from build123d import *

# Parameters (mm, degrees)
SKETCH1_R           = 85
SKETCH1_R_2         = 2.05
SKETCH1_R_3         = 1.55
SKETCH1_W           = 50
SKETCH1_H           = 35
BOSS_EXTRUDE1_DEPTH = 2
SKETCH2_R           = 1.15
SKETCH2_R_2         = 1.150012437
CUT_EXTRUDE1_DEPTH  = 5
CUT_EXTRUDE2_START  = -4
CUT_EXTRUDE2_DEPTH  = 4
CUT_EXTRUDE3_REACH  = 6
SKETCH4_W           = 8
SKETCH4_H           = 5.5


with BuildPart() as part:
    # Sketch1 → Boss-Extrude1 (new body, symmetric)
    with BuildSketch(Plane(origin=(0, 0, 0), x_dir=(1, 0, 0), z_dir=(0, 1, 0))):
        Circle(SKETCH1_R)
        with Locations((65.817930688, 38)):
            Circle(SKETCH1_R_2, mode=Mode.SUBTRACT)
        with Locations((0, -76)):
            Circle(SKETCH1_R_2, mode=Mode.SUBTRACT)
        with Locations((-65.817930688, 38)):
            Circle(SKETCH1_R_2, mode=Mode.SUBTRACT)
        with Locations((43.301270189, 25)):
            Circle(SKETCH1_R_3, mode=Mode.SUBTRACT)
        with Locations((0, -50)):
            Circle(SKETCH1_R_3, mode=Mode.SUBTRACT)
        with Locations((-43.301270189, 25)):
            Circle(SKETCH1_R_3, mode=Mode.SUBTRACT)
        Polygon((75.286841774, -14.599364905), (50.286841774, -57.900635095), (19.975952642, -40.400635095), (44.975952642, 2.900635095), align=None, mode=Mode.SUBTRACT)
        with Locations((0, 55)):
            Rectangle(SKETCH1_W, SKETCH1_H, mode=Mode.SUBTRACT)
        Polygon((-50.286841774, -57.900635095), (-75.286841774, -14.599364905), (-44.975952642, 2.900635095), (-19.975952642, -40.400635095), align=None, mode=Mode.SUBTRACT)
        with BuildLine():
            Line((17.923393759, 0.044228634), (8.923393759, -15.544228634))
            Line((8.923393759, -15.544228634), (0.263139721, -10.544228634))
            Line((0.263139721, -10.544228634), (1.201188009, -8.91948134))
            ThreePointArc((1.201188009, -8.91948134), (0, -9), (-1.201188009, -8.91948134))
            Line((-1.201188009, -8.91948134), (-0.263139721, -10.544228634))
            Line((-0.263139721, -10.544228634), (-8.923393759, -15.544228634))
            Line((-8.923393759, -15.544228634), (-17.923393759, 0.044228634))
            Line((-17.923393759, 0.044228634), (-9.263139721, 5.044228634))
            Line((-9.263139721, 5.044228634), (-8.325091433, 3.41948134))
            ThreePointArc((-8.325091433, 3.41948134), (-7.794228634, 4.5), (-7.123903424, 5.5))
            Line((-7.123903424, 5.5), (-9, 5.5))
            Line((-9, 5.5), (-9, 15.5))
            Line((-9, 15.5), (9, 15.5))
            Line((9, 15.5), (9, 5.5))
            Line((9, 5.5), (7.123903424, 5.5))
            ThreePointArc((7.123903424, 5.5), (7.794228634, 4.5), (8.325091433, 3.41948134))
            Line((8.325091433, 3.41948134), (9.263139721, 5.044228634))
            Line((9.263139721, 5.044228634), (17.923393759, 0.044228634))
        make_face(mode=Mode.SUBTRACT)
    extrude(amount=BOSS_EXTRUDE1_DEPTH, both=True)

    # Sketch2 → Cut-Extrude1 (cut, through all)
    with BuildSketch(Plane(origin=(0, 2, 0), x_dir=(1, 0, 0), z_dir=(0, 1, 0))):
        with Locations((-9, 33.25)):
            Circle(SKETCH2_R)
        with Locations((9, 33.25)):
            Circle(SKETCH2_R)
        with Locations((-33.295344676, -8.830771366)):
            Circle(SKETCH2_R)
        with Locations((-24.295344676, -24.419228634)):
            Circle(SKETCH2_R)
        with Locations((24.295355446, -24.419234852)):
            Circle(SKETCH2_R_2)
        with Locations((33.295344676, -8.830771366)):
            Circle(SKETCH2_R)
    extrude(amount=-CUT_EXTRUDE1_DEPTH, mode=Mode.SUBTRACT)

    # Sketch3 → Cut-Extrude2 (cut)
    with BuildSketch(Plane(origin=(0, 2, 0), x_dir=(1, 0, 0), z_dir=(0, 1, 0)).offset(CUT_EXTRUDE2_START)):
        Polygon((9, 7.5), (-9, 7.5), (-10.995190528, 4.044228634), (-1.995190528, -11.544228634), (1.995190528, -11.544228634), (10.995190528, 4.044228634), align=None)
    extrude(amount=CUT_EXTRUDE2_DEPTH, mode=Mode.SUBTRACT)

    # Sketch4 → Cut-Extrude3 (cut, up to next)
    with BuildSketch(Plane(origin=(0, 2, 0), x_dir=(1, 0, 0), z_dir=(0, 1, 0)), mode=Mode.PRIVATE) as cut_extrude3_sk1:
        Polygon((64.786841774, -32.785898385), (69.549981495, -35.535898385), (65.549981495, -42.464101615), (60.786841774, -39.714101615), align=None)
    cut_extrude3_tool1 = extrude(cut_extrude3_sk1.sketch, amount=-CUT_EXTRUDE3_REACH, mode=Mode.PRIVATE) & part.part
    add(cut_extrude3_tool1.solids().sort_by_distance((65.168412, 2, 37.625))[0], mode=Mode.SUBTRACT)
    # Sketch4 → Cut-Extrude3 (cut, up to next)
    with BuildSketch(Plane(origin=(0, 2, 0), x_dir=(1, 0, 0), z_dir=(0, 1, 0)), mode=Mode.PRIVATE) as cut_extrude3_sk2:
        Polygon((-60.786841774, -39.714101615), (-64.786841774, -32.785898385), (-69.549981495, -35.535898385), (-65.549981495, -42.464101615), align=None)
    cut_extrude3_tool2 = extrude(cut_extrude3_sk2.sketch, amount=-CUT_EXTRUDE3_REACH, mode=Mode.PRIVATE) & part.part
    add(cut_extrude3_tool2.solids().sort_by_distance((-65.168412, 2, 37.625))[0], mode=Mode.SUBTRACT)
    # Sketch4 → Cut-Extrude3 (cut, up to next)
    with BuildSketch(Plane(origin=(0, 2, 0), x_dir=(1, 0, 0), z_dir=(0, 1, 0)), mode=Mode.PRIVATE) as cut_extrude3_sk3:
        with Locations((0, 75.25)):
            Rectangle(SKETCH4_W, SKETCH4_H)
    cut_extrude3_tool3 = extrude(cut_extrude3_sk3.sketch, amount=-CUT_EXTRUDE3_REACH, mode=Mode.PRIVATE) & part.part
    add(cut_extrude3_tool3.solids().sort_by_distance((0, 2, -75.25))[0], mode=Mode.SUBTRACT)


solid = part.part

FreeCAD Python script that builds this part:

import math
import FreeCAD as App
import Part
import Sketcher

V = App.Vector
Q = App.Units.Quantity

doc = App.newDocument("Part")
body = doc.addObject("PartDesign::Body", "Body")

# Sketch on XZ plane
sketch1 = doc.addObject("Sketcher::SketchObject", "Sketch")
body.addObject(sketch1)
sketch1.AttachmentSupport = (doc.XZ_Plane, [""])
sketch1.MapMode = "FlatFace"
sketch1.addGeometry(Part.Circle(V(0, 0, 0), V(0, 0, 1), 85), False)
sketch1.addGeometry(Part.Circle(V(0, 76, 0), V(0, 0, 1), 2), False)
sketch1.addGeometry(Part.Circle(V(0, 50, 0), V(0, 0, 1), 1.6), False)
sketch1.addGeometry(Part.LineSegment(V(-20, 40.4, 0), V(-50.3, 57.9, 0)), False)
sketch1.addGeometry(Part.LineSegment(V(-50.3, 57.9, 0), V(-75.3, 14.6, 0)), False)
sketch1.addGeometry(Part.LineSegment(V(-75.3, 14.6, 0), V(-45, -2.9, 0)), False)
sketch1.addGeometry(Part.LineSegment(V(-45, -2.9, 0), V(-20, 40.4, 0)), False)
sketch1.addGeometry(Part.LineSegment(V(45, -2.9, 0), V(75.3, 14.6, 0)), False)
sketch1.addGeometry(Part.LineSegment(V(75.3, 14.6, 0), V(50.3, 57.9, 0)), False)
sketch1.addGeometry(Part.LineSegment(V(50.3, 57.9, 0), V(20, 40.4, 0)), False)
sketch1.addGeometry(Part.LineSegment(V(20, 40.4, 0), V(45, -2.9, 0)), False)
sketch1.addGeometry(Part.Circle(V(-43.3, -25, 0), V(0, 0, 1), 1.6), False)
sketch1.addGeometry(Part.LineSegment(V(9.3, -5, 0), V(17.9, 0, 0)), False)
sketch1.addGeometry(Part.LineSegment(V(17.9, 0, 0), V(8.9, 15.5, 0)), False)
sketch1.addGeometry(Part.LineSegment(V(8.9, 15.5, 0), V(0.3, 10.5, 0)), False)
sketch1.addGeometry(Part.LineSegment(V(0.3, 10.5, 0), V(1.2, 8.9, 0)), False)
sketch1.addGeometry(Part.ArcOfCircle(Part.Circle(V(0, 0, 0), V(0, 0, 1), 9), math.radians(82.33), math.radians(97.67)), False)
sketch1.addGeometry(Part.LineSegment(V(-1.2, 8.9, 0), V(-0.3, 10.5, 0)), False)
sketch1.addGeometry(Part.LineSegment(V(-0.3, 10.5, 0), V(-8.9, 15.5, 0)), False)
sketch1.addGeometry(Part.LineSegment(V(-8.9, 15.5, 0), V(-17.9, 0, 0)), False)
sketch1.addGeometry(Part.LineSegment(V(-17.9, 0, 0), V(-9.3, -5, 0)), False)
sketch1.addGeometry(Part.LineSegment(V(-9.3, -5, 0), V(-8.3, -3.4, 0)), False)
sketch1.addGeometry(Part.ArcOfCircle(Part.Circle(V(0, 0, 0), V(0, 0, 1), 9), math.radians(-157.67), math.radians(-142.33)), False)
sketch1.addGeometry(Part.LineSegment(V(-7.1, -5.5, 0), V(-9, -5.5, 0)), False)
sketch1.addGeometry(Part.LineSegment(V(-9, -5.5, 0), V(-9, -15.5, 0)), False)
sketch1.addGeometry(Part.LineSegment(V(-9, -15.5, 0), V(9, -15.5, 0)), False)
sketch1.addGeometry(Part.LineSegment(V(9, -15.5, 0), V(9, -5.5, 0)), False)
sketch1.addGeometry(Part.LineSegment(V(9, -5.5, 0), V(7.1, -5.5, 0)), False)
sketch1.addGeometry(Part.ArcOfCircle(Part.Circle(V(0, 0, 0), V(0, 0, 1), 9), math.radians(-37.67), math.radians(-22.33)), False)
sketch1.addGeometry(Part.LineSegment(V(8.3, -3.4, 0), V(9.3, -5, 0)), False)
sketch1.addGeometry(Part.Circle(V(-65.8, -38, 0), V(0, 0, 1), 2), False)
sketch1.addGeometry(Part.LineSegment(V(25, -37.5, 0), V(-25, -37.5, 0)), False)
sketch1.addGeometry(Part.LineSegment(V(-25, -37.5, 0), V(-25, -72.5, 0)), False)
sketch1.addGeometry(Part.LineSegment(V(-25, -72.5, 0), V(25, -72.5, 0)), False)
sketch1.addGeometry(Part.LineSegment(V(25, -72.5, 0), V(25, -37.5, 0)), False)
sketch1.addGeometry(Part.Circle(V(43.3, -25, 0), V(0, 0, 1), 1.6), False)
sketch1.addGeometry(Part.Circle(V(65.8, -38, 0), V(0, 0, 1), 2), False)
sketch1.addConstraint(Sketcher.Constraint("Coincident", 3, 2, 4, 1))
sketch1.addConstraint(Sketcher.Constraint("Coincident", 4, 2, 5, 1))
sketch1.addConstraint(Sketcher.Constraint("Coincident", 5, 2, 6, 1))
sketch1.addConstraint(Sketcher.Constraint("Coincident", 6, 2, 3, 1))
sketch1.addConstraint(Sketcher.Constraint("Coincident", 7, 2, 8, 1))
sketch1.addConstraint(Sketcher.Constraint("Coincident", 8, 2, 9, 1))
sketch1.addConstraint(Sketcher.Constraint("Coincident", 9, 2, 10, 1))
sketch1.addConstraint(Sketcher.Constraint("Coincident", 10, 2, 7, 1))
sketch1.addConstraint(Sketcher.Constraint("Coincident", 12, 2, 13, 1))
sketch1.addConstraint(Sketcher.Constraint("Coincident", 13, 2, 14, 1))
sketch1.addConstraint(Sketcher.Constraint("Coincident", 14, 2, 15, 1))
sketch1.addConstraint(Sketcher.Constraint("Coincident", 15, 2, 16, 1))
sketch1.addConstraint(Sketcher.Constraint("Coincident", 16, 2, 17, 1))
sketch1.addConstraint(Sketcher.Constraint("Coincident", 17, 2, 18, 1))
sketch1.addConstraint(Sketcher.Constraint("Coincident", 18, 2, 19, 1))
sketch1.addConstraint(Sketcher.Constraint("Coincident", 19, 2, 20, 1))
sketch1.addConstraint(Sketcher.Constraint("Coincident", 20, 2, 21, 1))
sketch1.addConstraint(Sketcher.Constraint("Coincident", 21, 2, 22, 1))
sketch1.addConstraint(Sketcher.Constraint("Coincident", 22, 2, 23, 1))
sketch1.addConstraint(Sketcher.Constraint("Coincident", 23, 2, 24, 1))
sketch1.addConstraint(Sketcher.Constraint("Coincident", 24, 2, 25, 1))
sketch1.addConstraint(Sketcher.Constraint("Coincident", 25, 2, 26, 1))
sketch1.addConstraint(Sketcher.Constraint("Coincident", 26, 2, 27, 1))
sketch1.addConstraint(Sketcher.Constraint("Coincident", 27, 2, 28, 1))
sketch1.addConstraint(Sketcher.Constraint("Coincident", 28, 2, 29, 1))
sketch1.addConstraint(Sketcher.Constraint("Coincident", 29, 2, 12, 1))
sketch1.addConstraint(Sketcher.Constraint("Coincident", 31, 2, 32, 1))
sketch1.addConstraint(Sketcher.Constraint("Coincident", 32, 2, 33, 1))
sketch1.addConstraint(Sketcher.Constraint("Coincident", 33, 2, 34, 1))
sketch1.addConstraint(Sketcher.Constraint("Coincident", 34, 2, 31, 1))
sketch1.addConstraint(Sketcher.Constraint("Horizontal", 23))
sketch1.addConstraint(Sketcher.Constraint("Vertical", 24))
sketch1.addConstraint(Sketcher.Constraint("Horizontal", 25))
sketch1.addConstraint(Sketcher.Constraint("Vertical", 26))
sketch1.addConstraint(Sketcher.Constraint("Horizontal", 27))
sketch1.addConstraint(Sketcher.Constraint("Horizontal", 31))
sketch1.addConstraint(Sketcher.Constraint("Vertical", 32))
sketch1.addConstraint(Sketcher.Constraint("Horizontal", 33))
sketch1.addConstraint(Sketcher.Constraint("Vertical", 34))
sketch1.addConstraint(Sketcher.Constraint("Coincident", 0, 3, -1, 1))
sketch1.addConstraint(Sketcher.Constraint("Coincident", 16, 3, -1, 1))
sketch1.addConstraint(Sketcher.Constraint("Coincident", 22, 3, -1, 1))
sketch1.addConstraint(Sketcher.Constraint("Coincident", 28, 3, -1, 1))
sketch1.addConstraint(Sketcher.Constraint("Equal", 2, 11))
sketch1.addConstraint(Sketcher.Constraint("Equal", 16, 22))
sketch1.addConstraint(Sketcher.Constraint("Equal", 22, 28))
sketch1.addConstraint(Sketcher.Constraint("Equal", 1, 30))
sketch1.addConstraint(Sketcher.Constraint("Equal", 11, 35))
sketch1.addConstraint(Sketcher.Constraint("Equal", 30, 36))
sketch1.addConstraint(Sketcher.Constraint("Symmetric", 11, 3, 35, 3, -2))
sketch1.addConstraint(Sketcher.Constraint("Symmetric", 30, 3, 36, 3, -2))
sketch1.addConstraint(Sketcher.Constraint("Symmetric", 4, 2, 7, 2, -2))
sketch1.addConstraint(Sketcher.Constraint("Symmetric", 3, 2, 8, 2, -2))
sketch1.addConstraint(Sketcher.Constraint("Symmetric", 6, 2, 9, 2, -2))
sketch1.addConstraint(Sketcher.Constraint("Symmetric", 5, 2, 10, 2, -2))
sketch1.addConstraint(Sketcher.Constraint("Symmetric", 14, 2, 17, 2, -2))
sketch1.addConstraint(Sketcher.Constraint("Symmetric", 13, 2, 18, 2, -2))
sketch1.addConstraint(Sketcher.Constraint("Symmetric", 12, 2, 19, 2, -2))
sketch1.addConstraint(Sketcher.Constraint("Symmetric", 23, 2, 26, 2, -2))
sketch1.addConstraint(Sketcher.Constraint("Symmetric", 20, 2, 29, 2, -2))
sketch1.addConstraint(Sketcher.Constraint("PointOnObject", 1, 3, -2))
sketch1.addConstraint(Sketcher.Constraint("PointOnObject", 2, 3, -2))
sketch1.addConstraint(Sketcher.Constraint("Perpendicular", 3, 4))
sketch1.addConstraint(Sketcher.Constraint("Perpendicular", 4, 5))
sketch1.addConstraint(Sketcher.Constraint("Perpendicular", 5, 6))
sketch1.addConstraint(Sketcher.Constraint("Perpendicular", 10, 12))
sketch1.addConstraint(Sketcher.Constraint("Perpendicular", 12, 13))
sketch1.addConstraint(Sketcher.Constraint("Perpendicular", 13, 14))
sketch1.addConstraint(Sketcher.Constraint("Perpendicular", 14, 15))
sketch1.addConstraint(Sketcher.Constraint("Parallel", 6, 17))
sketch1.addConstraint(Sketcher.Constraint("Perpendicular", 20, 21))
sketch1.addConstraint(Sketcher.Constraint("Parallel", 15, 29))
sketch1.addConstraint(Sketcher.Constraint("Equal", 12, 14))
sketch1.addConstraint(Sketcher.Constraint("Equal", 17, 21))
sketch1.addConstraint(Sketcher.Constraint("Diameter", 0, Q("170 mm")))
sketch1.addConstraint(Sketcher.Constraint("Radius", 16, Q("9 mm")))
sketch1.addConstraint(Sketcher.Constraint("Diameter", 1, Q("4.1 mm")))
sketch1.addConstraint(Sketcher.Constraint("Diameter", 2, Q("3.1 mm")))
sketch1.addConstraint(Sketcher.Constraint("DistanceX", 25, 1, 25, 2, Q("18 mm")))
sketch1.addConstraint(Sketcher.Constraint("DistanceX", 31, 2, 31, 1, Q("50 mm")))
sketch1.addConstraint(Sketcher.Constraint("DistanceY", 24, 2, 24, 1, Q("10 mm")))
sketch1.addConstraint(Sketcher.Constraint("DistanceY", 32, 2, 32, 1, Q("35 mm")))
sketch1.addConstraint(Sketcher.Constraint("Angle", 3, Q("150 deg")))
sketch1.addConstraint(Sketcher.Constraint("Distance", 3, Q("35 mm")))
sketch1.addConstraint(Sketcher.Constraint("Distance", 4, Q("50 mm")))
sketch1.addConstraint(Sketcher.Constraint("Distance", 12, Q("10 mm")))
sketch1.addConstraint(Sketcher.Constraint("Distance", 13, Q("18 mm")))
sketch1.addConstraint(Sketcher.Constraint("DistanceY", -1, 1, 1, 3, Q("76 mm")))
sketch1.addConstraint(Sketcher.Constraint("DistanceY", -1, 1, 2, 3, Q("50 mm")))
sketch1.addConstraint(Sketcher.Constraint("DistanceY", 11, 3, -1, 1, Q("25 mm")))
sketch1.addConstraint(Sketcher.Constraint("DistanceY", 30, 3, -1, 1, Q("38 mm")))
sketch1.addConstraint(Sketcher.Constraint("DistanceX", 31, 2, -1, 1, Q("25 mm")))
sketch1.addConstraint(Sketcher.Constraint("DistanceY", 31, 2, 24, 2, Q("22 mm")))
sketch1.addConstraint(Sketcher.Constraint("DistanceY", 22, 2, -1, 1, Q("5.5 mm")))
sketch1.addConstraint(Sketcher.Constraint("DistanceX", 11, 3, -1, 1, Q("43.30127 mm")))
sketch1.addConstraint(Sketcher.Constraint("DistanceX", 30, 3, -1, 1, Q("65.817931 mm")))
sketch1.addConstraint(Sketcher.Constraint("DistanceX", 3, 2, -1, 1, Q("50.286842 mm")))
sketch1.addConstraint(Sketcher.Constraint("DistanceY", 12, 2, -1, 1, Q("0.044229 mm")))
sketch1.addConstraint(Sketcher.Constraint("DistanceY", -1, 1, 3, 2, Q("57.900635 mm")))
pad1 = doc.addObject("PartDesign::Pad", "Pad")
body.addObject(pad1)
pad1.Profile = sketch1
pad1.Length = 4
pad1.Midplane = True

# Sketch on XZ plane
sketch2 = doc.addObject("Sketcher::SketchObject", "Sketch001")
body.addObject(sketch2)
sketch2.AttachmentSupport = (doc.XZ_Plane, [""])
sketch2.MapMode = "FlatFace"
sketch2.AttachmentOffset = App.Placement(V(0, 0, -2), App.Rotation())
sketch2.addGeometry(Part.Circle(V(-9, -33.2, 0), V(0, 0, 1), 1.1), False)
sketch2.addGeometry(Part.Circle(V(9, -33.2, 0), V(0, 0, 1), 1.1), False)
sketch2.addGeometry(Part.Circle(V(-33.3, 8.8, 0), V(0, 0, 1), 1.1), False)
sketch2.addGeometry(Part.Circle(V(-24.3, 24.4, 0), V(0, 0, 1), 1.1), False)
sketch2.addGeometry(Part.Circle(V(24.3, 24.4, 0), V(0, 0, 1), 1.2), False)
sketch2.addGeometry(Part.Circle(V(33.3, 8.8, 0), V(0, 0, 1), 1.1), False)
sketch2.addConstraint(Sketcher.Constraint("Equal", 0, 1))
sketch2.addConstraint(Sketcher.Constraint("Equal", 1, 2))
sketch2.addConstraint(Sketcher.Constraint("Equal", 2, 3))
sketch2.addConstraint(Sketcher.Constraint("Equal", 3, 5))
sketch2.addConstraint(Sketcher.Constraint("Symmetric", 0, 3, 1, 3, -2))
sketch2.addConstraint(Sketcher.Constraint("Symmetric", 2, 3, 5, 3, -2))
sketch2.addConstraint(Sketcher.Constraint("Diameter", 0, Q("2.3 mm")))
sketch2.addConstraint(Sketcher.Constraint("DistanceX", 0, 3, -1, 1, Q("9 mm")))
sketch2.addConstraint(Sketcher.Constraint("DistanceX", 2, 3, 3, 3, Q("9 mm")))
sketch2.addConstraint(Sketcher.Constraint("DistanceY", 0, 3, -1, 1, Q("33.25 mm")))
sketch2.addConstraint(Sketcher.Constraint("Diameter", 4, Q("2.300025 mm")))
sketch2.addConstraint(Sketcher.Constraint("DistanceX", 3, 3, 4, 3, Q("48.5907 mm")))
sketch2.addConstraint(Sketcher.Constraint("DistanceY", -1, 1, 2, 3, Q("8.830771 mm")))
sketch2.addConstraint(Sketcher.Constraint("DistanceY", -1, 1, 3, 3, Q("24.419229 mm")))
sketch2.addConstraint(Sketcher.Constraint("DistanceX", 4, 3, 5, 3, Q("8.999989 mm")))
sketch2.addConstraint(Sketcher.Constraint("DistanceY", -1, 1, 4, 3, Q("24.419235 mm")))
pocket1 = doc.addObject("PartDesign::Pocket", "Pocket")
body.addObject(pocket1)
pocket1.Profile = sketch2
pocket1.Type = "ThroughAll"
pocket1.Reversed = True

# Sketch on XZ plane
sketch3 = doc.addObject("Sketcher::SketchObject", "Sketch002")
body.addObject(sketch3)
sketch3.AttachmentSupport = (doc.XZ_Plane, [""])
sketch3.MapMode = "FlatFace"
sketch3.AttachmentOffset = App.Placement(V(0, 0, 2), App.Rotation())
sketch3.addGeometry(Part.LineSegment(V(9, -7.5, 0), V(-9, -7.5, 0)), False)
sketch3.addGeometry(Part.LineSegment(V(-9, -7.5, 0), V(-11, -4, 0)), False)
sketch3.addGeometry(Part.LineSegment(V(-11, -4, 0), V(-2, 11.5, 0)), False)
sketch3.addGeometry(Part.LineSegment(V(-2, 11.5, 0), V(2, 11.5, 0)), False)
sketch3.addGeometry(Part.LineSegment(V(2, 11.5, 0), V(11, -4, 0)), False)
sketch3.addGeometry(Part.LineSegment(V(11, -4, 0), V(9, -7.5, 0)), False)
sketch3.addConstraint(Sketcher.Constraint("Coincident", 0, 2, 1, 1))
sketch3.addConstraint(Sketcher.Constraint("Coincident", 1, 2, 2, 1))
sketch3.addConstraint(Sketcher.Constraint("Coincident", 2, 2, 3, 1))
sketch3.addConstraint(Sketcher.Constraint("Coincident", 3, 2, 4, 1))
sketch3.addConstraint(Sketcher.Constraint("Coincident", 4, 2, 5, 1))
sketch3.addConstraint(Sketcher.Constraint("Coincident", 5, 2, 0, 1))
sketch3.addConstraint(Sketcher.Constraint("Horizontal", 0))
sketch3.addConstraint(Sketcher.Constraint("Horizontal", 3))
sketch3.addConstraint(Sketcher.Constraint("Symmetric", 1, 2, 4, 2, -2))
sketch3.addConstraint(Sketcher.Constraint("Parallel", 1, 4))
sketch3.addConstraint(Sketcher.Constraint("Parallel", 2, 5))
sketch3.addConstraint(Sketcher.Constraint("Equal", 2, 4))
sketch3.addConstraint(Sketcher.Constraint("DistanceX", 0, 2, 0, 1, Q("18 mm")))
sketch3.addConstraint(Sketcher.Constraint("Angle", 1, Q("120 deg")))
sketch3.addConstraint(Sketcher.Constraint("Distance", 2, Q("18 mm")))
sketch3.addConstraint(Sketcher.Constraint("DistanceY", 0, 2, -1, 1, Q("7.5 mm")))
sketch3.addConstraint(Sketcher.Constraint("DistanceX", 3, 1, 3, 2, Q("3.990381 mm")))
pocket2 = doc.addObject("PartDesign::Pocket", "Pocket001")
body.addObject(pocket2)
pocket2.Profile = sketch3
pocket2.Length = 4

# Sketch on XZ plane
sketch4 = doc.addObject("Sketcher::SketchObject", "Sketch003")
body.addObject(sketch4)
sketch4.AttachmentSupport = (doc.XZ_Plane, [""])
sketch4.MapMode = "FlatFace"
sketch4.AttachmentOffset = App.Placement(V(0, 0, -2), App.Rotation())
sketch4.addGeometry(Part.LineSegment(V(70, 36, 0), V(65, 33, 0)), False)
sketch4.addGeometry(Part.LineSegment(V(65, 33, 0), V(61, 40, 0)), False)
sketch4.addGeometry(Part.LineSegment(V(61, 40, 0), V(66, 42, 0)), False)
sketch4.addGeometry(Part.LineSegment(V(66, 42, 0), V(70, 36, 0)), False)
sketch4.addConstraint(Sketcher.Constraint("Coincident", 0, 2, 1, 1))
sketch4.addConstraint(Sketcher.Constraint("Coincident", 1, 2, 2, 1))
sketch4.addConstraint(Sketcher.Constraint("Coincident", 2, 2, 3, 1))
sketch4.addConstraint(Sketcher.Constraint("Coincident", 3, 2, 0, 1))
sketch4.addConstraint(Sketcher.Constraint("Perpendicular", 0, 1))
sketch4.addConstraint(Sketcher.Constraint("Perpendicular", 1, 2))
sketch4.addConstraint(Sketcher.Constraint("Perpendicular", 2, 3))
sketch4.addConstraint(Sketcher.Constraint("Angle", 0, Q("-150 deg")))
sketch4.addConstraint(Sketcher.Constraint("Distance", 1, Q("8 mm")))
sketch4.addConstraint(Sketcher.Constraint("Distance", 0, Q("5.5 mm")))
sketch4.addConstraint(Sketcher.Constraint("DistanceY", -1, 1, 0, 2, Q("32.785898 mm")))
sketch4.addConstraint(Sketcher.Constraint("DistanceX", -1, 1, 0, 2, Q("64.786842 mm")))
pocket3 = doc.addObject("PartDesign::Pocket", "Pocket002")
body.addObject(pocket3)
pocket3.Profile = sketch4
pocket3.Type = "UpToFirst"
pocket3.Reversed = True

# Sketch on XZ plane
sketch5 = doc.addObject("Sketcher::SketchObject", "Sketch004")
body.addObject(sketch5)
sketch5.AttachmentSupport = (doc.XZ_Plane, [""])
sketch5.MapMode = "FlatFace"
sketch5.AttachmentOffset = App.Placement(V(0, 0, -2), App.Rotation())
sketch5.addGeometry(Part.LineSegment(V(-61, 40, 0), V(-65, 33, 0)), False)
sketch5.addGeometry(Part.LineSegment(V(-65, 33, 0), V(-70, 36, 0)), False)
sketch5.addGeometry(Part.LineSegment(V(-70, 36, 0), V(-66, 42, 0)), False)
sketch5.addGeometry(Part.LineSegment(V(-66, 42, 0), V(-61, 40, 0)), False)
sketch5.addConstraint(Sketcher.Constraint("Coincident", 0, 2, 1, 1))
sketch5.addConstraint(Sketcher.Constraint("Coincident", 1, 2, 2, 1))
sketch5.addConstraint(Sketcher.Constraint("Coincident", 2, 2, 3, 1))
sketch5.addConstraint(Sketcher.Constraint("Coincident", 3, 2, 0, 1))
sketch5.addConstraint(Sketcher.Constraint("Perpendicular", 0, 1))
sketch5.addConstraint(Sketcher.Constraint("Perpendicular", 1, 2))
sketch5.addConstraint(Sketcher.Constraint("Perpendicular", 2, 3))
sketch5.addConstraint(Sketcher.Constraint("Angle", 0, Q("-120 deg")))
sketch5.addConstraint(Sketcher.Constraint("Distance", 0, Q("8 mm")))
sketch5.addConstraint(Sketcher.Constraint("Distance", 1, Q("5.5 mm")))
sketch5.addConstraint(Sketcher.Constraint("DistanceY", -1, 1, 0, 2, Q("32.785898 mm")))
sketch5.addConstraint(Sketcher.Constraint("DistanceX", 0, 2, -1, 1, Q("64.786842 mm")))
pocket4 = doc.addObject("PartDesign::Pocket", "Pocket003")
body.addObject(pocket4)
pocket4.Profile = sketch5
pocket4.Type = "UpToFirst"
pocket4.Reversed = True

# Sketch on XZ plane
sketch6 = doc.addObject("Sketcher::SketchObject", "Sketch005")
body.addObject(sketch6)
sketch6.AttachmentSupport = (doc.XZ_Plane, [""])
sketch6.MapMode = "FlatFace"
sketch6.AttachmentOffset = App.Placement(V(0, 0, -2), App.Rotation())
sketch6.addGeometry(Part.LineSegment(V(-4, -78, 0), V(-4, -72, 0)), False)
sketch6.addGeometry(Part.LineSegment(V(-4, -72, 0), V(4, -72, 0)), False)
sketch6.addGeometry(Part.LineSegment(V(4, -72, 0), V(4, -78, 0)), False)
sketch6.addGeometry(Part.LineSegment(V(4, -78, 0), V(-4, -78, 0)), False)
sketch6.addConstraint(Sketcher.Constraint("Coincident", 0, 2, 1, 1))
sketch6.addConstraint(Sketcher.Constraint("Coincident", 1, 2, 2, 1))
sketch6.addConstraint(Sketcher.Constraint("Coincident", 2, 2, 3, 1))
sketch6.addConstraint(Sketcher.Constraint("Coincident", 3, 2, 0, 1))
sketch6.addConstraint(Sketcher.Constraint("Vertical", 0))
sketch6.addConstraint(Sketcher.Constraint("Horizontal", 1))
sketch6.addConstraint(Sketcher.Constraint("Vertical", 2))
sketch6.addConstraint(Sketcher.Constraint("Horizontal", 3))
sketch6.addConstraint(Sketcher.Constraint("DistanceX", 1, 1, 1, 2, Q("8 mm")))
sketch6.addConstraint(Sketcher.Constraint("DistanceY", 0, 1, 0, 2, Q("5.5 mm")))
sketch6.addConstraint(Sketcher.Constraint("DistanceX", 0, 2, -1, 1, Q("4 mm")))
sketch6.addConstraint(Sketcher.Constraint("DistanceY", 2, 2, -1, 1, Q("78 mm")))
pocket5 = doc.addObject("PartDesign::Pocket", "Pocket004")
body.addObject(pocket5)
pocket5.Profile = sketch6
pocket5.Type = "UpToFirst"
pocket5.Reversed = True

doc.recompute()
